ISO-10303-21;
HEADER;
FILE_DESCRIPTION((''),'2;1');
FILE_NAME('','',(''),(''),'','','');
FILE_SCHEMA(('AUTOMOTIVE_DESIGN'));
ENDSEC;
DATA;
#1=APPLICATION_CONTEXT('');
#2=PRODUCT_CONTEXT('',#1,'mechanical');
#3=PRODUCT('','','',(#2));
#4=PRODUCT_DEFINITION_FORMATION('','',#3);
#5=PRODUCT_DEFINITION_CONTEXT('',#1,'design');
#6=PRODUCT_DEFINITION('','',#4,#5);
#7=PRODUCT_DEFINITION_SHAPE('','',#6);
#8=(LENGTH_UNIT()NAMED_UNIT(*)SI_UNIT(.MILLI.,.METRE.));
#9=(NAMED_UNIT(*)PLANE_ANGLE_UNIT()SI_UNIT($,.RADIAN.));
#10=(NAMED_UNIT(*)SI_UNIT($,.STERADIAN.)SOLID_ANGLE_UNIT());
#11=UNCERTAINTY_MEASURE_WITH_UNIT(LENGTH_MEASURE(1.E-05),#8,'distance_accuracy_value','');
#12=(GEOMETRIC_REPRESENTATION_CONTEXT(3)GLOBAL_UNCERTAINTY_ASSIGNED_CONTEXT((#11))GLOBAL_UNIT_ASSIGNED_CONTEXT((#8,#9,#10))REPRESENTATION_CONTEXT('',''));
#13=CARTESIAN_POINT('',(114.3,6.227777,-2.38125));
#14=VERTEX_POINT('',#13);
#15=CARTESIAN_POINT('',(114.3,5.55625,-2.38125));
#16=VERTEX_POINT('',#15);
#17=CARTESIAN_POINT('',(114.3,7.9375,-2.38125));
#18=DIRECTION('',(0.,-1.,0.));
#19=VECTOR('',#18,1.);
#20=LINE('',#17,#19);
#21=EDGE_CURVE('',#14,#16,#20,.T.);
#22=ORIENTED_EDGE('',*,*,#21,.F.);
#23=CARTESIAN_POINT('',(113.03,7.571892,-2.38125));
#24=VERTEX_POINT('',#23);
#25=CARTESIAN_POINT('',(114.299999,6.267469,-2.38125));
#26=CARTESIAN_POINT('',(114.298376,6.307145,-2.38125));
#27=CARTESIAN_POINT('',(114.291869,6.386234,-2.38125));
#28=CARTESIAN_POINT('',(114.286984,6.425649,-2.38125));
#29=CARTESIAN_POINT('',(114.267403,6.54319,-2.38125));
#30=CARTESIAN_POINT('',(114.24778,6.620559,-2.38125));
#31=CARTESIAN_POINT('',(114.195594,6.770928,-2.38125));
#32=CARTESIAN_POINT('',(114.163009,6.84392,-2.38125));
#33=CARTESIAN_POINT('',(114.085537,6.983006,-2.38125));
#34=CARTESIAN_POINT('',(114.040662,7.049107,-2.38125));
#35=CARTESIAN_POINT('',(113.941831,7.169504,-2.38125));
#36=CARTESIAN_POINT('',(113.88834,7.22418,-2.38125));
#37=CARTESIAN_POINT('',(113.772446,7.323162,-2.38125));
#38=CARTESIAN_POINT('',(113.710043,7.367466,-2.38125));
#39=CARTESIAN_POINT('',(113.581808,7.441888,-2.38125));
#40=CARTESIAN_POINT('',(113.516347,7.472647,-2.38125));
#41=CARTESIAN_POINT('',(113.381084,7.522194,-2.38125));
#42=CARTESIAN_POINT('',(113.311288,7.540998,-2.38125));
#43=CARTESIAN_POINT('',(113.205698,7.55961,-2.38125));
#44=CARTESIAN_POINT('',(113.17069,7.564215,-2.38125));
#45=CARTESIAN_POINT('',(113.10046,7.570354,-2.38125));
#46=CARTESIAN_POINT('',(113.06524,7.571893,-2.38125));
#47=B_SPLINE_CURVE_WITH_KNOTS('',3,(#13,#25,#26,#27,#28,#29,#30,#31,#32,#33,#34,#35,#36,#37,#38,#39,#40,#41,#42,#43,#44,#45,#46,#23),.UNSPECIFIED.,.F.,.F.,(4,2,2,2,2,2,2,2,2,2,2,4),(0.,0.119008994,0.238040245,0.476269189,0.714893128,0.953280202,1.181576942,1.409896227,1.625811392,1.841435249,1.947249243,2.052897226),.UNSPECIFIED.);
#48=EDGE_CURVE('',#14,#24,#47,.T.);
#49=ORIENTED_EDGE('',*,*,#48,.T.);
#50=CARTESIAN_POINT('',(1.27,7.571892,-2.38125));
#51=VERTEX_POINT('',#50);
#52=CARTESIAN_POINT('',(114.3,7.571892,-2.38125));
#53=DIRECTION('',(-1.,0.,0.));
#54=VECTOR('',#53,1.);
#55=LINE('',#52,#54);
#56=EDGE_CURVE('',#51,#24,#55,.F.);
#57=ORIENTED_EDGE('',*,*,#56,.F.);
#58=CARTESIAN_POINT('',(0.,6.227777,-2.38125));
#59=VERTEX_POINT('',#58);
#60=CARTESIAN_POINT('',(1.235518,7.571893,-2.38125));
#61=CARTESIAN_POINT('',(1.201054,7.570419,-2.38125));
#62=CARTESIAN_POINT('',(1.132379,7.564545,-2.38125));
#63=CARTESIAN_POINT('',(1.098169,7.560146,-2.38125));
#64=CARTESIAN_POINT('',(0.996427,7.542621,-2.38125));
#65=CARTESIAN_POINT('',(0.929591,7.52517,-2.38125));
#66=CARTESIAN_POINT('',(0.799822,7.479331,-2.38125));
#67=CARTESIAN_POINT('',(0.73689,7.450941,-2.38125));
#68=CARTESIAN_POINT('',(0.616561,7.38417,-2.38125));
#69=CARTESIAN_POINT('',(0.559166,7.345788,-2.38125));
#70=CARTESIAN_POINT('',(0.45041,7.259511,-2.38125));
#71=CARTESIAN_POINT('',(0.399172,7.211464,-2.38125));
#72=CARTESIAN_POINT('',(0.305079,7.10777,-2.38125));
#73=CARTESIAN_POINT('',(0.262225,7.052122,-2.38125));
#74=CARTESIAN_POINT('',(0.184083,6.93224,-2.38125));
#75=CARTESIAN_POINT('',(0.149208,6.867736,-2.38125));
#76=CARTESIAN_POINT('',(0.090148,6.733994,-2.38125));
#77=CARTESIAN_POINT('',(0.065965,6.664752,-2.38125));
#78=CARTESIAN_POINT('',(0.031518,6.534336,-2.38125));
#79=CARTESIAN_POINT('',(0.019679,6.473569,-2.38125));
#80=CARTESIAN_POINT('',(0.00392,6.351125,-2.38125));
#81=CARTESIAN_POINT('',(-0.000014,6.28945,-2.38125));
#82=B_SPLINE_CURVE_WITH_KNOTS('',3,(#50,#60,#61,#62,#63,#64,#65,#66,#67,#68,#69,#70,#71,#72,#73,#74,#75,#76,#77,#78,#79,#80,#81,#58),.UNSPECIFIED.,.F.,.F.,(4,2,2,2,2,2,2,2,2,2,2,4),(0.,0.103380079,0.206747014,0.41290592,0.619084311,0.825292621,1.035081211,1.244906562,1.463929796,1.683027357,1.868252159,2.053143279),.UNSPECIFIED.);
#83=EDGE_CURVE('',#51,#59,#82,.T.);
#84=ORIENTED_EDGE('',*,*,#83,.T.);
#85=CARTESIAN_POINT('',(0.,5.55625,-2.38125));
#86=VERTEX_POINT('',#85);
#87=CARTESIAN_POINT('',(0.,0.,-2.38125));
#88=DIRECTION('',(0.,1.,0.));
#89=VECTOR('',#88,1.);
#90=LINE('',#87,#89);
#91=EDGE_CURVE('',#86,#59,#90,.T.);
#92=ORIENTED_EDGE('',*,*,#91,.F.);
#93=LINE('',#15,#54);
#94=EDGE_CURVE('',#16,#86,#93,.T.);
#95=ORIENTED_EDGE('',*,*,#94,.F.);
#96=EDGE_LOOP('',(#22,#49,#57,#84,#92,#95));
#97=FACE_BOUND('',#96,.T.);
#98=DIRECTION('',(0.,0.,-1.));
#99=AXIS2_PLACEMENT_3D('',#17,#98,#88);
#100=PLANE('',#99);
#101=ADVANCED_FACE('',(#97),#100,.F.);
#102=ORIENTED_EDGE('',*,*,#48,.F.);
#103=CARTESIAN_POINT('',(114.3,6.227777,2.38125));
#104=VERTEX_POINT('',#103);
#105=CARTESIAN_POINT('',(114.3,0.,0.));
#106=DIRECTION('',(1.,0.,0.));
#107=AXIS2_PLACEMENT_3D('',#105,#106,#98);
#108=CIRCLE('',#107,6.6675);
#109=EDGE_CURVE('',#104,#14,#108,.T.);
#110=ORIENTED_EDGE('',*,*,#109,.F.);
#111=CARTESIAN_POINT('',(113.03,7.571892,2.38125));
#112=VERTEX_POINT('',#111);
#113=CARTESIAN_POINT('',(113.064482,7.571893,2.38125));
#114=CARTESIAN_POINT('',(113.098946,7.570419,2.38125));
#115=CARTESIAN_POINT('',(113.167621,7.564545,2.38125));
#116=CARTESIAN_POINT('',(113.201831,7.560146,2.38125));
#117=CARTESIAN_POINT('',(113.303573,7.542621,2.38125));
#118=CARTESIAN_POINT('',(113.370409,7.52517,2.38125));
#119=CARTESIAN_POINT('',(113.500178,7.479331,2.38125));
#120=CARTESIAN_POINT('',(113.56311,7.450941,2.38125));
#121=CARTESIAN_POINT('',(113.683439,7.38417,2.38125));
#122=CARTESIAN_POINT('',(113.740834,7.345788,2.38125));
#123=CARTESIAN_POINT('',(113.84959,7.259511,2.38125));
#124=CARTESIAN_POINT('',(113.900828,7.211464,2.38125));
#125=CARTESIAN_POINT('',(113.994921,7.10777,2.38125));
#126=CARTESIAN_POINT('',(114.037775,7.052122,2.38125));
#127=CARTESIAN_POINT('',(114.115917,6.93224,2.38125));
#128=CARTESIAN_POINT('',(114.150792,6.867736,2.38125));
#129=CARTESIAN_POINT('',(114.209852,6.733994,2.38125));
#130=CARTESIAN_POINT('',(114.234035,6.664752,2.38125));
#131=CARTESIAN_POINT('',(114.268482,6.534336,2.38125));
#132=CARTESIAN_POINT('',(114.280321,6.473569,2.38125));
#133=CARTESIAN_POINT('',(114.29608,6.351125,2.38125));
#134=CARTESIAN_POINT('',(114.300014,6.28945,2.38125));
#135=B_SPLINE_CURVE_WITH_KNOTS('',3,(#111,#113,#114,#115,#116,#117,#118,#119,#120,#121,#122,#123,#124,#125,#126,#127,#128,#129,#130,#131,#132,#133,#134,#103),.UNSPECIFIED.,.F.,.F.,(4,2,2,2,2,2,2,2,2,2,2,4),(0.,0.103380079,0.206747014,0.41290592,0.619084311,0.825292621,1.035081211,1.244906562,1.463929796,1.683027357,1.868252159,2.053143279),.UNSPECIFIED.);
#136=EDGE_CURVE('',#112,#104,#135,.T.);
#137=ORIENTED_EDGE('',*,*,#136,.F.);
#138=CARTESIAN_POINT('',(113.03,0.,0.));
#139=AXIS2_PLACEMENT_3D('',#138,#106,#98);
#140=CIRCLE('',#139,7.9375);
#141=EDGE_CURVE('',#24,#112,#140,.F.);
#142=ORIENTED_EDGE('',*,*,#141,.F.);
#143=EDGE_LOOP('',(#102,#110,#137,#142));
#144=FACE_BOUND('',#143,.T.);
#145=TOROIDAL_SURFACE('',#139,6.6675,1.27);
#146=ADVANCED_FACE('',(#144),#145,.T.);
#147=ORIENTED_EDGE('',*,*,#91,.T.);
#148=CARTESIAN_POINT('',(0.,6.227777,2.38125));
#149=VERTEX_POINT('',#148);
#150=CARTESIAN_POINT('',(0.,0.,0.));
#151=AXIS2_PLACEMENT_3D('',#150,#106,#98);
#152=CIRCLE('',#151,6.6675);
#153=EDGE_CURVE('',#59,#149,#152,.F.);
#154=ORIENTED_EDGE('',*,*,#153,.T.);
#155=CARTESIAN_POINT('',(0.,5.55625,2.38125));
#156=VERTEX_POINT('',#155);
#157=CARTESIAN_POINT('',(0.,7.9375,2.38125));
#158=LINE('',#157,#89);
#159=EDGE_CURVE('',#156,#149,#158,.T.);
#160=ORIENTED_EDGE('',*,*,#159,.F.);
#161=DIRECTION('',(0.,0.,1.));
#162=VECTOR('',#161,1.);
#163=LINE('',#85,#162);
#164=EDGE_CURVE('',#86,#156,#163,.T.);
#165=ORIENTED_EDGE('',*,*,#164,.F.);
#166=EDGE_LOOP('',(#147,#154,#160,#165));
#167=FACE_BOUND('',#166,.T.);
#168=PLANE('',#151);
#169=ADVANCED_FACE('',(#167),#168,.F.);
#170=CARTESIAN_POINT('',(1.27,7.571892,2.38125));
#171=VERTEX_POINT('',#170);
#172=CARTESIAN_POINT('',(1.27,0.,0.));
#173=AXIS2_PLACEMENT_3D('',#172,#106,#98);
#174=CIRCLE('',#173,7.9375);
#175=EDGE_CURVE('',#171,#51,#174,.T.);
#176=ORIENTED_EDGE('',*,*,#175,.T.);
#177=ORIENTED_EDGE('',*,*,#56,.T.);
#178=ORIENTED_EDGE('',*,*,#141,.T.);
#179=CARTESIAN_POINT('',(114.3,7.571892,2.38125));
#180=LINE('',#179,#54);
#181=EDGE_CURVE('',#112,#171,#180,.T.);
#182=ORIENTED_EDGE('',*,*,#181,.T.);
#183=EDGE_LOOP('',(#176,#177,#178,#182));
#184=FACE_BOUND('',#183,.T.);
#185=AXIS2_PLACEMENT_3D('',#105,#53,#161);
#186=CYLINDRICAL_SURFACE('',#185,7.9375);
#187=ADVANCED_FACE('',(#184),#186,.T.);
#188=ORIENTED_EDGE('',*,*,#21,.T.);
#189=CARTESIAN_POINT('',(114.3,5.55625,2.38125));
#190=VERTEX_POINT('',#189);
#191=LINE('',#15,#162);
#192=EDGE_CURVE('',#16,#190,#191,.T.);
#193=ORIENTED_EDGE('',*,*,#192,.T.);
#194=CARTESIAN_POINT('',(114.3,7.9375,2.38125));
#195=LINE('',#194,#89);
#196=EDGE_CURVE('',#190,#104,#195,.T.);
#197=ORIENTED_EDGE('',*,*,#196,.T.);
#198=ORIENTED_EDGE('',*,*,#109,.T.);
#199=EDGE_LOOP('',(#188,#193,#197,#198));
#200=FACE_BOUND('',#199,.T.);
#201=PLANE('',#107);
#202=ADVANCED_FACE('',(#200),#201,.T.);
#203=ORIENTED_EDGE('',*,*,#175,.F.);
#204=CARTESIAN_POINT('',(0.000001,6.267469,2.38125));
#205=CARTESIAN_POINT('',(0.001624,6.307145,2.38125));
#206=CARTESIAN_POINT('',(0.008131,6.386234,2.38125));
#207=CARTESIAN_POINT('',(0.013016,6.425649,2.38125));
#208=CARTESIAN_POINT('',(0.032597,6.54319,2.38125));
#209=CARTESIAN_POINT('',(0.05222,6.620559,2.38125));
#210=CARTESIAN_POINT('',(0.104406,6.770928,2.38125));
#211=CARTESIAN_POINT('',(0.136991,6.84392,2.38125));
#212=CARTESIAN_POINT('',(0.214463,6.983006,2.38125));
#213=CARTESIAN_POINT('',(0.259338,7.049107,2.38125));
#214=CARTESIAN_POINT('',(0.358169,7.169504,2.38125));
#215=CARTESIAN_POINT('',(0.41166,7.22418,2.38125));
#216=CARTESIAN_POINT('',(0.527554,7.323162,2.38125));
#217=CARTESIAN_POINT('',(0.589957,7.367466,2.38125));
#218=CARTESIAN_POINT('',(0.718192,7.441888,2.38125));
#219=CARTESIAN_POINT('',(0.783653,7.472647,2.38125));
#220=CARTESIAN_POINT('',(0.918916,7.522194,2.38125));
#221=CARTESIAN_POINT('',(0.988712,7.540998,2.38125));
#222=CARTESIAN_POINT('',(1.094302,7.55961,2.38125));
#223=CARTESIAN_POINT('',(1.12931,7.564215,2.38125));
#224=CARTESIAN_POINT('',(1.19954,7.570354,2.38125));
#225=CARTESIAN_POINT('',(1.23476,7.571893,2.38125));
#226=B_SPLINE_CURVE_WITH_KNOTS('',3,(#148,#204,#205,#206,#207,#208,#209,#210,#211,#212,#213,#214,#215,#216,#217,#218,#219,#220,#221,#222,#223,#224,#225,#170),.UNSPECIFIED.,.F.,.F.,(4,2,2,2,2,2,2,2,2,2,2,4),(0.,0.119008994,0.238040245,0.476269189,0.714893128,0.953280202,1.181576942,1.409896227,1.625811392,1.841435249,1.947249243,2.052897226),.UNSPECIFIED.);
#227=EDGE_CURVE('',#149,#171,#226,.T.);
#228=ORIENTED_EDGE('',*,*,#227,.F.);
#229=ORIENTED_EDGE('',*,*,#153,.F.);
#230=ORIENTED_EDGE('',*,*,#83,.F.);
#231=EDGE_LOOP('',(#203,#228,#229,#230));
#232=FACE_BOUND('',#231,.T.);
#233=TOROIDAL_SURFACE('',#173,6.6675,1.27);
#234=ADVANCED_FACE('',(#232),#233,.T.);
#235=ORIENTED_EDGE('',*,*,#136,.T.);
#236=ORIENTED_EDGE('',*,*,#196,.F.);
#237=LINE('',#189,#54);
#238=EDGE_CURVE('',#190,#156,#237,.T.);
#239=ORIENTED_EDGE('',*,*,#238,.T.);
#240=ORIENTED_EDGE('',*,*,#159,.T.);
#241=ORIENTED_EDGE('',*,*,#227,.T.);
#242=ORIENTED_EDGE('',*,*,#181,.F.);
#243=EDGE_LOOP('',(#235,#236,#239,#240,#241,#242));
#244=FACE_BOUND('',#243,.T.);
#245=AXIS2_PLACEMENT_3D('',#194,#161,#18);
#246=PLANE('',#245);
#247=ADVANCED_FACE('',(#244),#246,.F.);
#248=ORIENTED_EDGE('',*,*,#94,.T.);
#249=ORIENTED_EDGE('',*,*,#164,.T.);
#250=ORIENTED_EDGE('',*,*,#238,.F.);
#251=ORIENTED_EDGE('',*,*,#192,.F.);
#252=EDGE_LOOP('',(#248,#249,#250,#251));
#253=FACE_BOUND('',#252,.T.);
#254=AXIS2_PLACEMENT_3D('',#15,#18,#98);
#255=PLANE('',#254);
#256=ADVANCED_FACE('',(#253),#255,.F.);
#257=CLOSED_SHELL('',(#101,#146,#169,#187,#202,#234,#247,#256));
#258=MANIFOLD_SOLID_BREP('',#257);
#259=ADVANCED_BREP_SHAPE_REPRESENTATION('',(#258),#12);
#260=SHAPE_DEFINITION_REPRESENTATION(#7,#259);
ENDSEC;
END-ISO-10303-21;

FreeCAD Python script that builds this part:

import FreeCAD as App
import Part
import Sketcher
from FreeCAD import Vector
Q = App.Units.Quantity


def edges_at(feature, points):
    """Names of the edges that pass closest to the given points."""
    edges = feature.Shape.Edges
    near = lambda p: min(range(len(edges)), key=lambda i: edges[i].distToShape(Part.Vertex(*p))[0])
    return sorted({f"Edge{near(p) + 1}" for p in points})


def add_polygon(sketch, points):
    """Adds a closed chain of lines whose ends are joined by coincident constraints."""
    first, n = sketch.GeometryCount, len(points)
    for a, b in zip(points, points[1:] + points[:1]):
        sketch.addGeometry(Part.LineSegment(App.Vector(*a, 0), App.Vector(*b, 0)), False)
    for i in range(n):
        sketch.addConstraint(Sketcher.Constraint("Coincident", first + i, 2, first + (i + 1) % n, 1))

doc = App.newDocument("Part")
body = doc.addObject("PartDesign::Body", "Body")

sketch1 = body.newObject("Sketcher::SketchObject", "Sketch")
sketch1.AttachmentSupport = (doc.getObject("YZ_Plane"), [""])
sketch1.MapMode = "FlatFace"
sketch1.addGeometry(Part.Circle(Vector(0, 0, 0), Vector(0, 0, 1), 8), False)
sketch1.addConstraint(Sketcher.Constraint("Coincident", 0, 3, -1, 1))
sketch1.addConstraint(Sketcher.Constraint("Diameter", 0, Q("0.625 in")))
pad1 = body.newObject("PartDesign::Pad", "Pad")
pad1.Profile = sketch1
pad1.Length = Q("4.5 in")

sketch2 = body.newObject("Sketcher::SketchObject", "Sketch001")
sketch2.AttachmentSupport = (doc.getObject("YZ_Plane"), [""])
sketch2.MapMode = "FlatFace"
add_polygon(sketch2, [(7.9, -2.4), (5.6, -2.4), (5.6, 2.4), (7.9, 2.4)])
sketch2.addConstraint(Sketcher.Constraint("Horizontal", 0))
sketch2.addConstraint(Sketcher.Constraint("Vertical", 1))
sketch2.addConstraint(Sketcher.Constraint("Horizontal", 2))
sketch2.addConstraint(Sketcher.Constraint("Vertical", 3))
sketch2.addConstraint(Sketcher.Constraint("DistanceX", 0, 2, 0, 1, Q("0.09375 in")))
sketch2.addConstraint(Sketcher.Constraint("DistanceY", 1, 1, 1, 2, Q("0.1875 in")))
sketch2.addConstraint(Sketcher.Constraint("DistanceX", -1, 1, 0, 2, Q("0.21875 in")))
sketch2.addConstraint(Sketcher.Constraint("DistanceY", 0, 2, -1, 1, Q("0.09375 in")))
pocket1 = body.newObject("PartDesign::Pocket", "Pocket")
pocket1.Profile = sketch2
pocket1.Type = "ThroughAll"
pocket1.Reversed = True
doc.recompute()

fillet = body.newObject("PartDesign::Fillet", "Fillet")
fillet.Base = (pocket1, edges_at(pocket1, [(0, -7.938, 0), (114.3, -7.938, 0)]))
fillet.Radius = Q("0.05 in")

doc.recompute()
